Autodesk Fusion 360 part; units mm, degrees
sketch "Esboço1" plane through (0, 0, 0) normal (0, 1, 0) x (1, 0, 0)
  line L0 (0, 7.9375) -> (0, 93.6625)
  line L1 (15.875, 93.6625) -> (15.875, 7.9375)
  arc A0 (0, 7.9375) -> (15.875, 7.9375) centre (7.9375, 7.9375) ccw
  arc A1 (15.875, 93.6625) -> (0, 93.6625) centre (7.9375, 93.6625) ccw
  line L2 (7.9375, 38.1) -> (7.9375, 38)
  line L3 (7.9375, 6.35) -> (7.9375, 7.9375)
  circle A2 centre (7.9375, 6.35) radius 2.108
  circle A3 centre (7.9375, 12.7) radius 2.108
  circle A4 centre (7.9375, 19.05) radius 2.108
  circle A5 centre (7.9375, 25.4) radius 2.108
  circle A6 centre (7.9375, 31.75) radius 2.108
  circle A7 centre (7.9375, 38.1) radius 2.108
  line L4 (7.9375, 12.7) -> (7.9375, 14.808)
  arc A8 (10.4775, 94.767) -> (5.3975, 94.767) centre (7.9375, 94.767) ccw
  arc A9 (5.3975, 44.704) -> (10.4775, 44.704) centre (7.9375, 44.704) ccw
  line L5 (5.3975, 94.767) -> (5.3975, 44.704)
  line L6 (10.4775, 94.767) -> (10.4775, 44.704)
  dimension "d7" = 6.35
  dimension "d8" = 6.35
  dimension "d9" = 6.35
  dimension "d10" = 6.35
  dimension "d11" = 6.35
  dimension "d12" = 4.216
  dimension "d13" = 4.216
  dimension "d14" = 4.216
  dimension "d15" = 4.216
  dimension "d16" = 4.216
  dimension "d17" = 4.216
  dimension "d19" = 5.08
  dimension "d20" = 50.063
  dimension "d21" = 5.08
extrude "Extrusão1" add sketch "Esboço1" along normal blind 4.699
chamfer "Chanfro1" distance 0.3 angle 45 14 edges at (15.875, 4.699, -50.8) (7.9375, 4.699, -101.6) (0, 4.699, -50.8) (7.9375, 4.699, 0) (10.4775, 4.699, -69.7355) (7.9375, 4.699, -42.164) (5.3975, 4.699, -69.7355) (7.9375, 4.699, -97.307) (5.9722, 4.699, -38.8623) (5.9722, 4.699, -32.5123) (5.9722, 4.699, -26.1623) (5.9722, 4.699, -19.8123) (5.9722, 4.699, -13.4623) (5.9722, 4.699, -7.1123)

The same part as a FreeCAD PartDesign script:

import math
import FreeCAD as App
import Part
import Sketcher

V = App.Vector
Q = App.Units.Quantity


def edges_at(feature, points):
    """Names of the edges that pass closest to the given points."""
    edges = feature.Shape.Edges
    near = lambda p: min(range(len(edges)), key=lambda i: edges[i].distToShape(Part.Vertex(*p))[0])
    return sorted({f"Edge{near(p) + 1}" for p in points})

doc = App.newDocument("Part")
body = doc.addObject("PartDesign::Body", "Body")

# Sketch on XZ plane
sketch1 = doc.addObject("Sketcher::SketchObject", "Sketch")
body.addObject(sketch1)
sketch1.AttachmentSupport = (doc.XZ_Plane, [""])
sketch1.MapMode = "FlatFace"
sketch1.addGeometry([
    Part.LineSegment(V(0, -93.6625, 0), V(0, -7.9375, 0)),  # 0
    Part.ArcOfCircle(Part.Circle(V(7.9375, -7.9375, 0), V(0, 0, 1), 7.9375), math.radians(0), math.radians(180)),  # 1
    Part.LineSegment(V(15.875, -7.9375, 0), V(15.875, -93.6625, 0)),  # 2
    Part.ArcOfCircle(Part.Circle(V(7.9375, -93.6625, 0), V(0, 0, 1), 7.9375), math.radians(180), math.radians(360)),  # 3
    Part.Circle(V(7.9375, -6.35, 0), V(0, 0, 1), 2.108),  # 4
    Part.Circle(V(7.9375, -12.7, 0), V(0, 0, 1), 2.108),  # 5
    Part.Circle(V(7.9375, -19.05, 0), V(0, 0, 1), 2.108),  # 6
    Part.Circle(V(7.9375, -25.4, 0), V(0, 0, 1), 2.108),  # 7
    Part.Circle(V(7.9375, -31.75, 0), V(0, 0, 1), 2.108),  # 8
    Part.Circle(V(7.9375, -38.1, 0), V(0, 0, 1), 2.108),  # 9
    Part.ArcOfCircle(Part.Circle(V(7.9375, -94.767, 0), V(0, 0, 1), 2.54), math.radians(180), math.radians(360)),  # 10
    Part.LineSegment(V(10.4775, -94.767, 0), V(10.4775, -44.704, 0)),  # 11
    Part.ArcOfCircle(Part.Circle(V(7.9375, -44.704, 0), V(0, 0, 1), 2.54), math.radians(0), math.radians(180)),  # 12
    Part.LineSegment(V(5.3975, -44.704, 0), V(5.3975, -94.767, 0)),  # 13
], False)
sketch1.addConstraint([
    Sketcher.Constraint("Tangent", 0, 2, 1, 2),
    Sketcher.Constraint("Tangent", 1, 1, 2, 1),
    Sketcher.Constraint("Tangent", 2, 2, 3, 2),
    Sketcher.Constraint("Tangent", 3, 1, 0, 1),
    Sketcher.Constraint("Tangent", 10, 2, 11, 1),
    Sketcher.Constraint("Tangent", 11, 2, 12, 1),
    Sketcher.Constraint("Tangent", 12, 2, 13, 1),
    Sketcher.Constraint("Tangent", 13, 2, 10, 1),
    Sketcher.Constraint("Vertical", 0),
    Sketcher.Constraint("Vertical", 2),
    Sketcher.Constraint("Vertical", 11),
    Sketcher.Constraint("Vertical", 13),
    Sketcher.Constraint("Equal", 4, 5),
    Sketcher.Constraint("Equal", 5, 6),
    Sketcher.Constraint("Equal", 6, 7),
    Sketcher.Constraint("Equal", 7, 8),
    Sketcher.Constraint("Equal", 8, 9),
    Sketcher.Constraint("PointOnObject", 0, 2, -2),
    Sketcher.Constraint("Vertical", 3, 3, 4, 3),
    Sketcher.Constraint("Vertical", 4, 3, 5, 3),
    Sketcher.Constraint("Vertical", 5, 3, 6, 3),
    Sketcher.Constraint("Vertical", 6, 3, 7, 3),
    Sketcher.Constraint("Vertical", 7, 3, 8, 3),
    Sketcher.Constraint("Vertical", 8, 3, 9, 3),
    Sketcher.Constraint("Vertical", 9, 3, 10, 3),
    Sketcher.Constraint("Radius", 10, Q("0.1 in")),
    Sketcher.Constraint("Diameter", 4, 4.216),
    Sketcher.Constraint("DistanceY", 4, 3, -1, 1, Q("0.25 in")),
    Sketcher.Constraint("DistanceY", 5, 3, 4, 3, Q("0.25 in")),
    Sketcher.Constraint("DistanceY", 6, 3, 5, 3, Q("0.25 in")),
    Sketcher.Constraint("DistanceY", 7, 3, 6, 3, Q("0.25 in")),
    Sketcher.Constraint("DistanceY", 8, 3, 7, 3, Q("0.25 in")),
    Sketcher.Constraint("DistanceY", 9, 3, 8, 3, Q("0.25 in")),
    Sketcher.Constraint("Radius", 1, Q("0.3125 in")),
    Sketcher.Constraint("DistanceY", 11, 1, 11, 2, 50.063),
    Sketcher.Constraint("DistanceY", 0, 1, 0, 2, Q("3.375 in")),
    Sketcher.Constraint("DistanceY", 12, 3, -1, 1, Q("1.76 in")),
    Sketcher.Constraint("DistanceY", 1, 3, -1, 1, Q("0.3125 in")),
])
pad1 = doc.addObject("PartDesign::Pad", "Pad")
body.addObject(pad1)
pad1.Profile = sketch1
pad1.Length = Q("0.185 in")
pad1.Reversed = True
doc.recompute()

chamfer = doc.addObject("PartDesign::Chamfer", "Chamfer")
body.addObject(chamfer)
chamfer.Base = (pad1, edges_at(pad1, [
    (15.875, 4.699, -50.8),
    (7.938, 4.699, -101.6),
    (0, 4.699, -50.8),
    (7.938, 4.699, 0),
    (10.477, 4.699, -69.736),
    (7.938, 4.699, -42.164),
    (5.397, 4.699, -69.736),
    (7.938, 4.699, -97.307),
    (5.972, 4.699, -38.862),
    (5.972, 4.699, -32.512),
    (5.972, 4.699, -26.162),
    (5.972, 4.699, -19.812),
    (5.972, 4.699, -13.462),
    (5.972, 4.699, -7.112),
]))
chamfer.Size = Q("0.011811 in")

doc.recompute()
